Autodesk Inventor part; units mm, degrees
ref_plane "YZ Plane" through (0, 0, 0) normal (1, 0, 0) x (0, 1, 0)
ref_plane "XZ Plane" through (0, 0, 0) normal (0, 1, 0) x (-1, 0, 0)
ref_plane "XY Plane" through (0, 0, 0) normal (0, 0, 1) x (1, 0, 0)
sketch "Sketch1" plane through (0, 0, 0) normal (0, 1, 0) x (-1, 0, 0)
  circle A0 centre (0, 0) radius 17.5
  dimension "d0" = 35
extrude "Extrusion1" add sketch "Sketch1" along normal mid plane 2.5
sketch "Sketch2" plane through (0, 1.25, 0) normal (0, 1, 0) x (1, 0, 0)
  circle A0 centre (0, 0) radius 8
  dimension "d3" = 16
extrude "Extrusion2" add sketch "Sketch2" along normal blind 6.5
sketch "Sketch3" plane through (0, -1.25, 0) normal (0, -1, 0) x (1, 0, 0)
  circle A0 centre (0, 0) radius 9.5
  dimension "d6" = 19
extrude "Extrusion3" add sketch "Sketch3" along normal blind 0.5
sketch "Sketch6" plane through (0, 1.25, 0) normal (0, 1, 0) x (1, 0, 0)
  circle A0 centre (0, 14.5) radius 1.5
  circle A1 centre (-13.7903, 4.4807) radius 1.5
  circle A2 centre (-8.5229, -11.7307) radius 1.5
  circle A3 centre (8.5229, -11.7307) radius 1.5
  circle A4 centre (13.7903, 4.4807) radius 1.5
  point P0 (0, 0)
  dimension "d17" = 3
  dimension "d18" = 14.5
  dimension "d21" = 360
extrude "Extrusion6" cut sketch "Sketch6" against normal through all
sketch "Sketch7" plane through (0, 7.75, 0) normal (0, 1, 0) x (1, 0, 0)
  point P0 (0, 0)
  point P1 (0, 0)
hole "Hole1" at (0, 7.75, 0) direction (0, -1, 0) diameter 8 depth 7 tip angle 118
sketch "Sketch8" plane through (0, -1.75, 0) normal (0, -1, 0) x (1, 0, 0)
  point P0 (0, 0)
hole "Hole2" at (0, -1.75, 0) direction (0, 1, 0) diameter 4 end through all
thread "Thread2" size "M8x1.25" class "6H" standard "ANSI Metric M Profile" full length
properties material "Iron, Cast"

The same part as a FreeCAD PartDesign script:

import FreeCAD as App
import Part
import Sketcher

doc = App.newDocument("Part")
params = doc.addObject("Spreadsheet::Sheet", "Params")
for row, (alias, value) in enumerate([
    ("sketch1_diameter", "35 mm"),
    ("pad1_length", "2.5 mm"),
    ("sketch2_diameter", "16 mm"),
    ("pad2_length", "6.5 mm"),
    ("sketch3_diameter", "19 mm"),
    ("pad3_length", "0.5 mm"),
    ("sketch4_diameter", "3 mm"),
    ("sketch5_diameter", "8 mm"),
    ("hole_diameter", "8 mm"),
    ("hole_depth", "7 mm"),
    ("sketch6_diameter", "4 mm"),
    ("hole2_diameter", "4 mm"),
], start=1):
    params.set(f"A{row}", alias)
    params.set(f"B{row}", "=" + value)
    params.setAlias(f"B{row}", alias)

body = doc.addObject("PartDesign::Body", "Body")

# Sketch on XZ plane
sketch1 = body.newObject("Sketcher::SketchObject", "Sketch")
sketch1.AttachmentSupport = (doc.getObject("XZ_Plane"), [""])
sketch1.MapMode = "FlatFace"
sketch1.addGeometry(Part.Circle(App.Vector(0, 0, 0), App.Vector(0, 0, 1), 17.5), False)
sketch1.addConstraint(Sketcher.Constraint("Coincident", 0, 3, -1, 1))
sketch1.addConstraint(Sketcher.Constraint("Diameter", 0, 35.0))
sketch1.setExpression("Constraints[1]", "Params.sketch1_diameter")
pad1 = body.newObject("PartDesign::Pad", "Pad")
pad1.Profile = sketch1
pad1.setExpression("Length", "Params.pad1_length")
pad1.Midplane = True

# Sketch on XZ plane
sketch2 = body.newObject("Sketcher::SketchObject", "Sketch001")
sketch2.AttachmentSupport = (doc.getObject("XZ_Plane"), [""])
sketch2.MapMode = "FlatFace"
sketch2.AttachmentOffset = App.Placement(App.Vector(0, 0, -1.25), App.Rotation())
sketch2.addGeometry(Part.Circle(App.Vector(0, 0, 0), App.Vector(0, 0, 1), 8), False)
sketch2.addConstraint(Sketcher.Constraint("Coincident", 0, 3, -1, 1))
sketch2.addConstraint(Sketcher.Constraint("Diameter", 0, 16.0))
sketch2.setExpression("Constraints[1]", "Params.sketch2_diameter")
pad2 = body.newObject("PartDesign::Pad", "Pad001")
pad2.Profile = sketch2
pad2.setExpression("Length", "Params.pad2_length")
pad2.Reversed = True

# Sketch on XZ plane
sketch3 = body.newObject("Sketcher::SketchObject", "Sketch002")
sketch3.AttachmentSupport = (doc.getObject("XZ_Plane"), [""])
sketch3.MapMode = "FlatFace"
sketch3.AttachmentOffset = App.Placement(App.Vector(0, 0, 1.25), App.Rotation())
sketch3.addGeometry(Part.Circle(App.Vector(0, 0, 0), App.Vector(0, 0, 1), 9.5), False)
sketch3.addConstraint(Sketcher.Constraint("Coincident", 0, 3, -1, 1))
sketch3.addConstraint(Sketcher.Constraint("Diameter", 0, 19.0))
sketch3.setExpression("Constraints[1]", "Params.sketch3_diameter")
pad3 = body.newObject("PartDesign::Pad", "Pad002")
pad3.Profile = sketch3
pad3.setExpression("Length", "Params.pad3_length")

# Sketch on XZ plane
sketch4 = body.newObject("Sketcher::SketchObject", "Sketch003")
sketch4.AttachmentSupport = (doc.getObject("XZ_Plane"), [""])
sketch4.MapMode = "FlatFace"
sketch4.AttachmentOffset = App.Placement(App.Vector(0, 0, -1.25), App.Rotation())
sketch4.addGeometry(Part.Circle(App.Vector(0, -14.5, 0), App.Vector(0, 0, 1), 1.5), False)
sketch4.addGeometry(Part.Circle(App.Vector(-13.7903, -4.4807, 0), App.Vector(0, 0, 1), 1.5), False)
sketch4.addGeometry(Part.Circle(App.Vector(-8.5229, 11.7307, 0), App.Vector(0, 0, 1), 1.5), False)
sketch4.addGeometry(Part.Circle(App.Vector(8.5229, 11.7307, 0), App.Vector(0, 0, 1), 1.5), False)
sketch4.addGeometry(Part.Circle(App.Vector(13.7903, -4.4807, 0), App.Vector(0, 0, 1), 1.5), False)
sketch4.addConstraint(Sketcher.Constraint("Equal", 0, 1))
sketch4.addConstraint(Sketcher.Constraint("Equal", 1, 2))
sketch4.addConstraint(Sketcher.Constraint("Equal", 2, 3))
sketch4.addConstraint(Sketcher.Constraint("Equal", 3, 4))
sketch4.addConstraint(Sketcher.Constraint("Symmetric", 2, 3, 3, 3, -2))
sketch4.addConstraint(Sketcher.Constraint("Symmetric", 1, 3, 4, 3, -2))
sketch4.addConstraint(Sketcher.Constraint("PointOnObject", 0, 3, -2))
sketch4.addConstraint(Sketcher.Constraint("Diameter", 0, 3.0))
sketch4.addConstraint(Sketcher.Constraint("DistanceY", 0, 3, -1, 1, 14.5))
sketch4.addConstraint(Sketcher.Constraint("DistanceX", 2, 3, -1, 1, 8.523))
sketch4.addConstraint(Sketcher.Constraint("DistanceX", 1, 3, -1, 1, 13.7903))
sketch4.addConstraint(Sketcher.Constraint("DistanceY", 1, 3, -1, 1, 4.4807))
sketch4.addConstraint(Sketcher.Constraint("DistanceY", -1, 1, 2, 3, 11.7307))
sketch4.setExpression("Constraints[7]", "Params.sketch4_diameter")
pocket1 = body.newObject("PartDesign::Pocket", "Pocket")
pocket1.Profile = sketch4
pocket1.Type = "ThroughAll"
pocket1.Reversed = True

# Sketch on XZ plane
sketch5 = body.newObject("Sketcher::SketchObject", "Sketch004")
sketch5.AttachmentSupport = (doc.getObject("XZ_Plane"), [""])
sketch5.MapMode = "FlatFace"
sketch5.AttachmentOffset = App.Placement(App.Vector(0, 0, -7.75), App.Rotation())
sketch5.addGeometry(Part.Circle(App.Vector(0, 0, 0), App.Vector(0, 0, 1), 4), False)
sketch5.addConstraint(Sketcher.Constraint("Coincident", 0, 3, -1, 1))
sketch5.addConstraint(Sketcher.Constraint("Diameter", 0, 8.0))
sketch5.setExpression("Constraints[1]", "Params.sketch5_diameter")
doc.recompute()
hole = body.newObject("PartDesign::Hole", "Hole")
hole.Profile = sketch5
hole.ThreadType = "None"
hole.setExpression("Diameter", "Params.hole_diameter")
hole.DepthType = "Dimension"
hole.setExpression("Depth", "Params.hole_depth")
hole.DrillPoint = "Angled"
hole.DrillPointAngle = 118
hole.Reversed = True

# Sketch on XZ plane
sketch6 = body.newObject("Sketcher::SketchObject", "Sketch005")
sketch6.AttachmentSupport = (doc.getObject("XZ_Plane"), [""])
sketch6.MapMode = "FlatFace"
sketch6.AttachmentOffset = App.Placement(App.Vector(0, 0, 1.75), App.Rotation())
sketch6.addGeometry(Part.Circle(App.Vector(0, 0, 0), App.Vector(0, 0, 1), 2), False)
sketch6.addConstraint(Sketcher.Constraint("Coincident", 0, 3, -1, 1))
sketch6.addConstraint(Sketcher.Constraint("Diameter", 0, 4.0))
sketch6.setExpression("Constraints[1]", "Params.sketch6_diameter")
doc.recompute()
hole2 = body.newObject("PartDesign::Hole", "Hole001")
hole2.Profile = sketch6
hole2.ThreadType = "None"
hole2.setExpression("Diameter", "Params.hole2_diameter")
hole2.DepthType = "ThroughAll"

doc.recompute()
